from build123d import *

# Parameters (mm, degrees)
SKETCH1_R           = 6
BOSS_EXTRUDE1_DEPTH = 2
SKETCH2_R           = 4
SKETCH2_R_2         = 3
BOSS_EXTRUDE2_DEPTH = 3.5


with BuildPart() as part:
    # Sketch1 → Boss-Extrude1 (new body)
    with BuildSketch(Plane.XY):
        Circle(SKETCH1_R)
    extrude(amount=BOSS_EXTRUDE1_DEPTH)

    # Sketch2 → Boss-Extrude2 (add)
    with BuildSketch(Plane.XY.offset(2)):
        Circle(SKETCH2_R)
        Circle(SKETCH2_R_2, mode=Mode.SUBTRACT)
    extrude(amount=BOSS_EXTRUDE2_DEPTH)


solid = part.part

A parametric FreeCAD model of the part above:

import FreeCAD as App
import Part
import Sketcher

V = App.Vector
Q = App.Units.Quantity

doc = App.newDocument("Part")
body = doc.addObject("PartDesign::Body", "Body")

# Sketch on XY plane
sketch1 = body.newObject("Sketcher::SketchObject", "Sketch")
sketch1.AttachmentSupport = (doc.getObject("XY_Plane"), [""])
sketch1.MapMode = "FlatFace"
sketch1.addGeometry(Part.Circle(V(0, 0, 0), V(0, 0, 1), 6), False)
sketch1.addConstraint(Sketcher.Constraint("Coincident", 0, 3, -1, 1))
sketch1.addConstraint(Sketcher.Constraint("Diameter", 0, Q("12 mm")))
pad1 = body.newObject("PartDesign::Pad", "Pad")
pad1.Profile = sketch1
pad1.Length = 2

# Sketch on XY plane
sketch2 = body.newObject("Sketcher::SketchObject", "Sketch001")
sketch2.AttachmentSupport = (doc.getObject("XY_Plane"), [""])
sketch2.MapMode = "FlatFace"
sketch2.AttachmentOffset = App.Placement(V(0, 0, 2), App.Rotation())
sketch2.addGeometry(Part.Circle(V(0, 0, 0), V(0, 0, 1), 4), False)
sketch2.addGeometry(Part.Circle(V(0, 0, 0), V(0, 0, 1), 3), False)
sketch2.addConstraint(Sketcher.Constraint("Coincident", 0, 3, -1, 1))
sketch2.addConstraint(Sketcher.Constraint("Coincident", 1, 3, -1, 1))
sketch2.addConstraint(Sketcher.Constraint("Diameter", 0, Q("8 mm")))
sketch2.addConstraint(Sketcher.Constraint("Diameter", 1, Q("6 mm")))
pad2 = body.newObject("PartDesign::Pad", "Pad001")
pad2.Profile = sketch2
pad2.Length = 3.5

doc.recompute()
